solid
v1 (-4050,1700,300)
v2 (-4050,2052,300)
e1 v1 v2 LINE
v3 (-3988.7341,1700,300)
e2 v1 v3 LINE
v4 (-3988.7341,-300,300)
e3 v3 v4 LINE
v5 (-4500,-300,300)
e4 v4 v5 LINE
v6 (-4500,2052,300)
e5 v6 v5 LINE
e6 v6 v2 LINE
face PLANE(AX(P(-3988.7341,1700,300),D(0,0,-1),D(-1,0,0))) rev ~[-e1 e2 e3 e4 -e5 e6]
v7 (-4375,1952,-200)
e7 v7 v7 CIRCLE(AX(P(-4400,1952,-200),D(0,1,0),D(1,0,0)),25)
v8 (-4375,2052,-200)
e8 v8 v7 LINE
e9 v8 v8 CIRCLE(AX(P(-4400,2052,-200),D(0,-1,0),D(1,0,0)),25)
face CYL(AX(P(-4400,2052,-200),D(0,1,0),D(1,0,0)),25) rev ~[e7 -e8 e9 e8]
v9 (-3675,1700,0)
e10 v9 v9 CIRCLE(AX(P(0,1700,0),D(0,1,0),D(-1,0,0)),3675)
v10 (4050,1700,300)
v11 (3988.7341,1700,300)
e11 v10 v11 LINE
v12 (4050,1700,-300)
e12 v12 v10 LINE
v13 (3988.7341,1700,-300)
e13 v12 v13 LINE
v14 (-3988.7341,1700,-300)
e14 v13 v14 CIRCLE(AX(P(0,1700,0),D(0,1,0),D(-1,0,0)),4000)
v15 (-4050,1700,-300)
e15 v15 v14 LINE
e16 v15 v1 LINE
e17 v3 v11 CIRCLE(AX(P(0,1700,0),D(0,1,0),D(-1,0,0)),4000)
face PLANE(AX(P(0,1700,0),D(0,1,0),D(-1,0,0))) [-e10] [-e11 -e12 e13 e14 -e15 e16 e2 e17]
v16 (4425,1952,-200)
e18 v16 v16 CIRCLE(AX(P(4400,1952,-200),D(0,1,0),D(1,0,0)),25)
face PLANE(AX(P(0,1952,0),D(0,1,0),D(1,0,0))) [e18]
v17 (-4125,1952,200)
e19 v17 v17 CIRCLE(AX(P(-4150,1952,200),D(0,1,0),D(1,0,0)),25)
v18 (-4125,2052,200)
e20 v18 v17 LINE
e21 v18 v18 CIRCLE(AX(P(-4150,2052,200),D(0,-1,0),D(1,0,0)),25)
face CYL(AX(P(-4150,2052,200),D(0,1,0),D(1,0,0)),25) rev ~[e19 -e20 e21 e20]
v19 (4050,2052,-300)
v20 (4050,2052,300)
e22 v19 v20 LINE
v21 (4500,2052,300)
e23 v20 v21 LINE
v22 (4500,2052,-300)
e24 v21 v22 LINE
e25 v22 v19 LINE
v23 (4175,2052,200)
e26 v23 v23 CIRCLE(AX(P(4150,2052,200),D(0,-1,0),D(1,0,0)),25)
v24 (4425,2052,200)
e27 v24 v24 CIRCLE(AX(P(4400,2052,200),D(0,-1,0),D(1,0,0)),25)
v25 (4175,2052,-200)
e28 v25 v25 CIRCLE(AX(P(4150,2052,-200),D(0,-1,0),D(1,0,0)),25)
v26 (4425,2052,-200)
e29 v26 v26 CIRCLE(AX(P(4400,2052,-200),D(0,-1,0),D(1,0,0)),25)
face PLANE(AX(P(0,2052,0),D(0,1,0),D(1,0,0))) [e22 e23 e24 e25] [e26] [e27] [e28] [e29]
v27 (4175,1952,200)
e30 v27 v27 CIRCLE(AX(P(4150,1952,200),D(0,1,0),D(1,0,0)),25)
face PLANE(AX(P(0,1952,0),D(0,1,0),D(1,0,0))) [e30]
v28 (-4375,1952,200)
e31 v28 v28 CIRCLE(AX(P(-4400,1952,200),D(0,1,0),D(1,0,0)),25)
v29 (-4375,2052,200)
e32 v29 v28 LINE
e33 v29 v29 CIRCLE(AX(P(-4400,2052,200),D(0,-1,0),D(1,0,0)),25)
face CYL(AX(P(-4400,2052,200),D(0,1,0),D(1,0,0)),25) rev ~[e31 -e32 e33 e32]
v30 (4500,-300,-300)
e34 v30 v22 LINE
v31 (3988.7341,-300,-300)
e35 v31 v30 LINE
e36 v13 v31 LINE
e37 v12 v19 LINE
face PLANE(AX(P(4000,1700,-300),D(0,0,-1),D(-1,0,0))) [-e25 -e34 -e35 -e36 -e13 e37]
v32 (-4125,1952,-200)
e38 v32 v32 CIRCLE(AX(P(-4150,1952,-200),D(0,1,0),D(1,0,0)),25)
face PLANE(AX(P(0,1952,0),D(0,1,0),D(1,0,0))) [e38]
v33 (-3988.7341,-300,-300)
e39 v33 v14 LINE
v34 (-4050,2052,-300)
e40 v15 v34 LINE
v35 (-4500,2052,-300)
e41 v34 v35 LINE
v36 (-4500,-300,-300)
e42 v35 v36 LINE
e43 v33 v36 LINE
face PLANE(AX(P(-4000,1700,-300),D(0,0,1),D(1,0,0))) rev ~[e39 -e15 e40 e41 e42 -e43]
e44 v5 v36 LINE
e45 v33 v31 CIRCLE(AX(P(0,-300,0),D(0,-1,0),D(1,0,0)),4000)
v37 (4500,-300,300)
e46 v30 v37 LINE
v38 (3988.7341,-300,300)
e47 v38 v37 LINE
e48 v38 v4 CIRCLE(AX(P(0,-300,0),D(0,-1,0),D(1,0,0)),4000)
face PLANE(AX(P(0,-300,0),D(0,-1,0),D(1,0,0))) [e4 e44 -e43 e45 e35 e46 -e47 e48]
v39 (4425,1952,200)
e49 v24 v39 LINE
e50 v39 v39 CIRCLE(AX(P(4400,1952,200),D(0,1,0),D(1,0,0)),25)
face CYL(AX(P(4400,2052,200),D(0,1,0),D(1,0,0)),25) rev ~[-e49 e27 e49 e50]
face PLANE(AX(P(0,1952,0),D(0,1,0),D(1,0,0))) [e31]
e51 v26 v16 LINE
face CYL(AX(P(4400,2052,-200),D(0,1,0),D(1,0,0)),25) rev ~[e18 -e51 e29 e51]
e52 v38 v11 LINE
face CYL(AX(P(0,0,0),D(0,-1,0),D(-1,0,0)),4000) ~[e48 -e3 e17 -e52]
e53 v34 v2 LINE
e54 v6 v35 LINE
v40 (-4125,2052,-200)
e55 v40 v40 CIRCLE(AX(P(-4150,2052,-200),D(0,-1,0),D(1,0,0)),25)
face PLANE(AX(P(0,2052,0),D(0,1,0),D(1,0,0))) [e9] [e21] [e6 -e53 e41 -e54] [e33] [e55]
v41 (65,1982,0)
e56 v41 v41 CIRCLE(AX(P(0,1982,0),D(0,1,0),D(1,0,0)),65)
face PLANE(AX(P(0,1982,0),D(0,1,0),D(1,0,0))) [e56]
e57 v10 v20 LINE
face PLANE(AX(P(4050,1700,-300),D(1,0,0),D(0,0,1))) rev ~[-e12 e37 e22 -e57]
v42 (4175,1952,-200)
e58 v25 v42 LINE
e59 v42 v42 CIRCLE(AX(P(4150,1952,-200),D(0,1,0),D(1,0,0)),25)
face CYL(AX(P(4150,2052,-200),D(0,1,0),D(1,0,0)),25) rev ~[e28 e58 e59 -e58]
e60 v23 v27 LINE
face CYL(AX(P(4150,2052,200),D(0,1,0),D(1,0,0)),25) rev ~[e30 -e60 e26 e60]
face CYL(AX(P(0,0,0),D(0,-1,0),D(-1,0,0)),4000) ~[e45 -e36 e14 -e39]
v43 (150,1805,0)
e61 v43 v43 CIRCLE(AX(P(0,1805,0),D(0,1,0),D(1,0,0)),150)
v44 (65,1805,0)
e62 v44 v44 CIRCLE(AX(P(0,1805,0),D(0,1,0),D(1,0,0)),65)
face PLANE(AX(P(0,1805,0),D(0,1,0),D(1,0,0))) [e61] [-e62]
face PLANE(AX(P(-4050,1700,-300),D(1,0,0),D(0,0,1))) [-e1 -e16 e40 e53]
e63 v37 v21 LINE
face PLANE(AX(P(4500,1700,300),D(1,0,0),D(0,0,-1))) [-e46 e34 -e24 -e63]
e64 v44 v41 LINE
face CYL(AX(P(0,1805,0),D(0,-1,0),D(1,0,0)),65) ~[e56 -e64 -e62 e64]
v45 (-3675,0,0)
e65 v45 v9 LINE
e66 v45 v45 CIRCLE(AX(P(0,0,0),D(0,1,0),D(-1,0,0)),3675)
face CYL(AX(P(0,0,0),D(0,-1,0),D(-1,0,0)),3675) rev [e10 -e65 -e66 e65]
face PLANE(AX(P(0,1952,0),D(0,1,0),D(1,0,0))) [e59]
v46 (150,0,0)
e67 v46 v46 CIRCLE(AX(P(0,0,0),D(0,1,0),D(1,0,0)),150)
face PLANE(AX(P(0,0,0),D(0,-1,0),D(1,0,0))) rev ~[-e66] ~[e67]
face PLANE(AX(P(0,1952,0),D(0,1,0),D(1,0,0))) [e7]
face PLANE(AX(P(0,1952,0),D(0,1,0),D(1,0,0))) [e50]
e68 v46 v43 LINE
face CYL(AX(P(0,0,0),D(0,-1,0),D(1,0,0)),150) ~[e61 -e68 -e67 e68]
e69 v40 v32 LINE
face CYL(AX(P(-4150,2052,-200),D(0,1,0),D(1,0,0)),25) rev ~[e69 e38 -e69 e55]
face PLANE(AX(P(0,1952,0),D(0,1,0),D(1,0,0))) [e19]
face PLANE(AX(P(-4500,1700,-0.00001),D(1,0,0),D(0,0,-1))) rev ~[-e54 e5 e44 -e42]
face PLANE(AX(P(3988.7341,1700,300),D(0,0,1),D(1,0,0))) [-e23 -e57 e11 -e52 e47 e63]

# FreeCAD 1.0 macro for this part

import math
import FreeCAD as App
import Part
import Sketcher

doc = App.newDocument("Part")
body = doc.addObject("PartDesign::Body", "Body")

# Sketch on XZ plane
sketch1 = body.newObject("Sketcher::SketchObject", "Sketch")
sketch1.AttachmentSupport = (doc.getObject("XZ_Plane"), [""])
sketch1.MapMode = "FlatFace"
sketch1.addGeometry(Part.Circle(App.Vector(0, 0, 0), App.Vector(0, 0, 1), 4000), False)
sketch1.addGeometry(Part.Circle(App.Vector(0, 0, 0), App.Vector(0, 0, 1), 3675), False)
sketch1.addConstraint(Sketcher.Constraint("Coincident", 0, 3, -1, 1))
sketch1.addConstraint(Sketcher.Constraint("Coincident", 1, 3, -1, 1))
sketch1.addConstraint(Sketcher.Constraint("Diameter", 0, 8000.0))
sketch1.addConstraint(Sketcher.Constraint("Diameter", 1, 7350.0))
pad1 = body.newObject("PartDesign::Pad", "Pad")
pad1.Profile = sketch1
pad1.Length = 1700
pad1.Reversed = True

# Sketch on XZ plane
sketch2 = body.newObject("Sketcher::SketchObject", "Sketch001")
sketch2.AttachmentSupport = (doc.getObject("XZ_Plane"), [""])
sketch2.MapMode = "FlatFace"
sketch2.addGeometry(Part.Circle(App.Vector(0, 0, 0), App.Vector(0, 0, 1), 4000), False)
sketch2.addConstraint(Sketcher.Constraint("Coincident", 0, 3, -1, 1))
sketch2.addConstraint(Sketcher.Constraint("Diameter", 0, 8000.0))
pad2 = body.newObject("PartDesign::Pad", "Pad001")
pad2.Profile = sketch2
pad2.Length = 300

# Sketch on XZ plane
sketch3 = body.newObject("Sketcher::SketchObject", "Sketch002")
sketch3.AttachmentSupport = (doc.getObject("XZ_Plane"), [""])
sketch3.MapMode = "FlatFace"
sketch3.addGeometry(Part.Circle(App.Vector(0, 0, 0), App.Vector(0, 0, 1), 150), False)
sketch3.addConstraint(Sketcher.Constraint("Coincident", 0, 3, -1, 1))
sketch3.addConstraint(Sketcher.Constraint("Diameter", 0, 300.0))
pad3 = body.newObject("PartDesign::Pad", "Pad002")
pad3.Profile = sketch3
pad3.Length = 1805
pad3.Reversed = True

# Sketch on XZ plane
sketch4 = body.newObject("Sketcher::SketchObject", "Sketch003")
sketch4.AttachmentSupport = (doc.getObject("XZ_Plane"), [""])
sketch4.MapMode = "FlatFace"
sketch4.AttachmentOffset = App.Placement(App.Vector(0, 0, -1805), App.Rotation())
sketch4.addGeometry(Part.Circle(App.Vector(0, 0, 0), App.Vector(0, 0, 1), 65), False)
sketch4.addConstraint(Sketcher.Constraint("Coincident", 0, 3, -1, 1))
sketch4.addConstraint(Sketcher.Constraint("Diameter", 0, 130.0))
pad4 = body.newObject("PartDesign::Pad", "Pad003")
pad4.Profile = sketch4
pad4.Length = 177
pad4.Reversed = True

# Sketch on XZ plane
sketch5 = body.newObject("Sketcher::SketchObject", "Sketch004")
sketch5.AttachmentSupport = (doc.getObject("XZ_Plane"), [""])
sketch5.MapMode = "FlatFace"
sketch5.AttachmentOffset = App.Placement(App.Vector(0, 0, -1700), App.Rotation())
sketch5.addGeometry(Part.LineSegment(App.Vector(3989, 300, 0), App.Vector(4500, 300, 0)), False)
sketch5.addGeometry(Part.LineSegment(App.Vector(4500, 300, 0), App.Vector(4500, -300, 0)), False)
sketch5.addGeometry(Part.LineSegment(App.Vector(4500, -300, 0), App.Vector(3989, -300, 0)), False)
sketch5.addGeometry(Part.ArcOfCircle(Part.Circle(App.Vector(0, 0, 0), App.Vector(0, 0, 1), 4000), math.radians(-4.3), math.radians(4.3)), False)
sketch5.addGeometry(Part.LineSegment(App.Vector(-3989, -300, 0), App.Vector(-4500, -300, 0)), False)
sketch5.addGeometry(Part.LineSegment(App.Vector(-4500, -300, 0), App.Vector(-4500, 300, 0)), False)
sketch5.addGeometry(Part.LineSegment(App.Vector(-4500, 300, 0), App.Vector(-3989, 300, 0)), False)
sketch5.addGeometry(Part.ArcOfCircle(Part.Circle(App.Vector(0, 0, 0), App.Vector(0, 0, 1), 4000), math.radians(175.7), math.radians(184.3)), False)
sketch5.addConstraint(Sketcher.Constraint("Coincident", 0, 2, 1, 1))
sketch5.addConstraint(Sketcher.Constraint("Coincident", 1, 2, 2, 1))
sketch5.addConstraint(Sketcher.Constraint("Coincident", 2, 2, 3, 1))
sketch5.addConstraint(Sketcher.Constraint("Coincident", 3, 2, 0, 1))
sketch5.addConstraint(Sketcher.Constraint("Coincident", 4, 2, 5, 1))
sketch5.addConstraint(Sketcher.Constraint("Coincident", 5, 2, 6, 1))
sketch5.addConstraint(Sketcher.Constraint("Coincident", 6, 2, 7, 1))
sketch5.addConstraint(Sketcher.Constraint("Coincident", 7, 2, 4, 1))
sketch5.addConstraint(Sketcher.Constraint("Horizontal", 0))
sketch5.addConstraint(Sketcher.Constraint("Vertical", 1))
sketch5.addConstraint(Sketcher.Constraint("Horizontal", 2))
sketch5.addConstraint(Sketcher.Constraint("Horizontal", 4))
sketch5.addConstraint(Sketcher.Constraint("Vertical", 5))
sketch5.addConstraint(Sketcher.Constraint("Horizontal", 6))
sketch5.addConstraint(Sketcher.Constraint("Coincident", 3, 3, -1, 1))
sketch5.addConstraint(Sketcher.Constraint("Coincident", 7, 3, -1, 1))
sketch5.addConstraint(Sketcher.Constraint("Equal", 3, 7))
sketch5.addConstraint(Sketcher.Constraint("Symmetric", 0, 2, 4, 2, -1, 1))
sketch5.addConstraint(Sketcher.Constraint("Horizontal", 2, 2, 4, 2))
sketch5.addConstraint(Sketcher.Constraint("Equal", 4, 6))
sketch5.addConstraint(Sketcher.Constraint("Radius", 3, 4000.0))
sketch5.addConstraint(Sketcher.Constraint("DistanceY", 1, 2, 1, 1, 600.0))
sketch5.addConstraint(Sketcher.Constraint("DistanceX", -1, 1, 0, 2, 4500.0))
pad5 = body.newObject("PartDesign::Pad", "Pad004")
pad5.Profile = sketch5
pad5.Length = 2000

# Sketch on XZ plane
sketch6 = body.newObject("Sketcher::SketchObject", "Sketch005")
sketch6.AttachmentSupport = (doc.getObject("XZ_Plane"), [""])
sketch6.MapMode = "FlatFace"
sketch6.AttachmentOffset = App.Placement(App.Vector(0, 0, -1700), App.Rotation())
sketch6.addGeometry(Part.LineSegment(App.Vector(-4050, 300, 0), App.Vector(-4050, -300, 0)), False)
sketch6.addGeometry(Part.LineSegment(App.Vector(-4050, -300, 0), App.Vector(-4500, -300, 0)), False)
sketch6.addGeometry(Part.LineSegment(App.Vector(-4500, -300, 0), App.Vector(-4500, 300, 0)), False)
sketch6.addGeometry(Part.LineSegment(App.Vector(-4500, 300, 0), App.Vector(-4050, 300, 0)), False)
sketch6.addGeometry(Part.LineSegment(App.Vector(4050, 300, 0), App.Vector(4500, 300, 0)), False)
sketch6.addGeometry(Part.LineSegment(App.Vector(4500, 300, 0), App.Vector(4500, -300, 0)), False)
sketch6.addGeometry(Part.LineSegment(App.Vector(4500, -300, 0), App.Vector(4050, -300, 0)), False)
sketch6.addGeometry(Part.LineSegment(App.Vector(4050, -300, 0), App.Vector(4050, 300, 0)), False)
sketch6.addConstraint(Sketcher.Constraint("Coincident", 0, 2, 1, 1))
sketch6.addConstraint(Sketcher.Constraint("Coincident", 1, 2, 2, 1))
sketch6.addConstraint(Sketcher.Constraint("Coincident", 2, 2, 3, 1))
sketch6.addConstraint(Sketcher.Constraint("Coincident", 3, 2, 0, 1))
sketch6.addConstraint(Sketcher.Constraint("Coincident", 4, 2, 5, 1))
sketch6.addConstraint(Sketcher.Constraint("Coincident", 5, 2, 6, 1))
sketch6.addConstraint(Sketcher.Constraint("Coincident", 6, 2, 7, 1))
sketch6.addConstraint(Sketcher.Constraint("Coincident", 7, 2, 4, 1))
sketch6.addConstraint(Sketcher.Constraint("Vertical", 0))
sketch6.addConstraint(Sketcher.Constraint("Horizontal", 1))
sketch6.addConstraint(Sketcher.Constraint("Vertical", 2))
sketch6.addConstraint(Sketcher.Constraint("Horizontal", 3))
sketch6.addConstraint(Sketcher.Constraint("Horizontal", 4))
sketch6.addConstraint(Sketcher.Constraint("Vertical", 5))
sketch6.addConstraint(Sketcher.Constraint("Horizontal", 6))
sketch6.addConstraint(Sketcher.Constraint("Vertical", 7))
sketch6.addConstraint(Sketcher.Constraint("Symmetric", 1, 2, 4, 2, -1, 1))
sketch6.addConstraint(Sketcher.Constraint("Symmetric", 3, 2, 6, 2, -1, 1))
sketch6.addConstraint(Sketcher.Constraint("Horizontal", 3, 2, 4, 2))
sketch6.addConstraint(Sketcher.Constraint("DistanceX", 1, 2, 1, 1, 450.0))
sketch6.addConstraint(Sketcher.Constraint("DistanceY", 0, 2, 0, 1, 600.0))
sketch6.addConstraint(Sketcher.Constraint("DistanceX", 0, 2, -1, 1, 4050.0))
pad6 = body.newObject("PartDesign::Pad", "Pad005")
pad6.Profile = sketch6
pad6.Length = 352
pad6.Reversed = True

# Sketch on XZ plane
sketch7 = body.newObject("Sketcher::SketchObject", "Sketch006")
sketch7.AttachmentSupport = (doc.getObject("XZ_Plane"), [""])
sketch7.MapMode = "FlatFace"
sketch7.AttachmentOffset = App.Placement(App.Vector(0, 0, -2052), App.Rotation())
sketch7.addGeometry(Part.Circle(App.Vector(-4400, -200, 0), App.Vector(0, 0, 1), 25), False)
sketch7.addGeometry(Part.Circle(App.Vector(-4150, -200, 0), App.Vector(0, 0, 1), 25), False)
sketch7.addGeometry(Part.Circle(App.Vector(-4400, 200, 0), App.Vector(0, 0, 1), 25), False)
sketch7.addGeometry(Part.Circle(App.Vector(-4150, 200, 0), App.Vector(0, 0, 1), 25), False)
sketch7.addGeometry(Part.Circle(App.Vector(4150, -200, 0), App.Vector(0, 0, 1), 25), False)
sketch7.addGeometry(Part.Circle(App.Vector(4400, -200, 0), App.Vector(0, 0, 1), 25), False)
sketch7.addGeometry(Part.Circle(App.Vector(4150, 200, 0), App.Vector(0, 0, 1), 25), False)
sketch7.addGeometry(Part.Circle(App.Vector(4400, 200, 0), App.Vector(0, 0, 1), 25), False)
sketch7.addConstraint(Sketcher.Constraint("Equal", 0, 1))
sketch7.addConstraint(Sketcher.Constraint("Equal", 1, 2))
sketch7.addConstraint(Sketcher.Constraint("Equal", 2, 3))
sketch7.addConstraint(Sketcher.Constraint("Equal", 3, 4))
sketch7.addConstraint(Sketcher.Constraint("Equal", 4, 5))
sketch7.addConstraint(Sketcher.Constraint("Equal", 5, 6))
sketch7.addConstraint(Sketcher.Constraint("Equal", 6, 7))
sketch7.addConstraint(Sketcher.Constraint("Symmetric", 3, 3, 4, 3, -1, 1))
sketch7.addConstraint(Sketcher.Constraint("Symmetric", 2, 3, 5, 3, -1, 1))
sketch7.addConstraint(Sketcher.Constraint("Symmetric", 1, 3, 6, 3, -1, 1))
sketch7.addConstraint(Sketcher.Constraint("Symmetric", 0, 3, 7, 3, -1, 1))
sketch7.addConstraint(Sketcher.Constraint("Symmetric", 1, 3, 4, 3, -2))
sketch7.addConstraint(Sketcher.Constraint("Symmetric", 0, 3, 5, 3, -2))
sketch7.addConstraint(Sketcher.Constraint("Horizontal", 0, 3, 1, 3))
sketch7.addConstraint(Sketcher.Constraint("Diameter", 0, 50.0))
sketch7.addConstraint(Sketcher.Constraint("DistanceX", 0, 3, -1, 1, 4400.0))
sketch7.addConstraint(Sketcher.Constraint("DistanceY", 0, 3, -1, 1, 200.0))
sketch7.addConstraint(Sketcher.Constraint("DistanceX", 1, 3, -1, 1, 4150.0))
pocket1 = body.newObject("PartDesign::Pocket", "Pocket")
pocket1.Profile = sketch7
pocket1.Length = 100
pocket1.Reversed = True

doc.recompute()
